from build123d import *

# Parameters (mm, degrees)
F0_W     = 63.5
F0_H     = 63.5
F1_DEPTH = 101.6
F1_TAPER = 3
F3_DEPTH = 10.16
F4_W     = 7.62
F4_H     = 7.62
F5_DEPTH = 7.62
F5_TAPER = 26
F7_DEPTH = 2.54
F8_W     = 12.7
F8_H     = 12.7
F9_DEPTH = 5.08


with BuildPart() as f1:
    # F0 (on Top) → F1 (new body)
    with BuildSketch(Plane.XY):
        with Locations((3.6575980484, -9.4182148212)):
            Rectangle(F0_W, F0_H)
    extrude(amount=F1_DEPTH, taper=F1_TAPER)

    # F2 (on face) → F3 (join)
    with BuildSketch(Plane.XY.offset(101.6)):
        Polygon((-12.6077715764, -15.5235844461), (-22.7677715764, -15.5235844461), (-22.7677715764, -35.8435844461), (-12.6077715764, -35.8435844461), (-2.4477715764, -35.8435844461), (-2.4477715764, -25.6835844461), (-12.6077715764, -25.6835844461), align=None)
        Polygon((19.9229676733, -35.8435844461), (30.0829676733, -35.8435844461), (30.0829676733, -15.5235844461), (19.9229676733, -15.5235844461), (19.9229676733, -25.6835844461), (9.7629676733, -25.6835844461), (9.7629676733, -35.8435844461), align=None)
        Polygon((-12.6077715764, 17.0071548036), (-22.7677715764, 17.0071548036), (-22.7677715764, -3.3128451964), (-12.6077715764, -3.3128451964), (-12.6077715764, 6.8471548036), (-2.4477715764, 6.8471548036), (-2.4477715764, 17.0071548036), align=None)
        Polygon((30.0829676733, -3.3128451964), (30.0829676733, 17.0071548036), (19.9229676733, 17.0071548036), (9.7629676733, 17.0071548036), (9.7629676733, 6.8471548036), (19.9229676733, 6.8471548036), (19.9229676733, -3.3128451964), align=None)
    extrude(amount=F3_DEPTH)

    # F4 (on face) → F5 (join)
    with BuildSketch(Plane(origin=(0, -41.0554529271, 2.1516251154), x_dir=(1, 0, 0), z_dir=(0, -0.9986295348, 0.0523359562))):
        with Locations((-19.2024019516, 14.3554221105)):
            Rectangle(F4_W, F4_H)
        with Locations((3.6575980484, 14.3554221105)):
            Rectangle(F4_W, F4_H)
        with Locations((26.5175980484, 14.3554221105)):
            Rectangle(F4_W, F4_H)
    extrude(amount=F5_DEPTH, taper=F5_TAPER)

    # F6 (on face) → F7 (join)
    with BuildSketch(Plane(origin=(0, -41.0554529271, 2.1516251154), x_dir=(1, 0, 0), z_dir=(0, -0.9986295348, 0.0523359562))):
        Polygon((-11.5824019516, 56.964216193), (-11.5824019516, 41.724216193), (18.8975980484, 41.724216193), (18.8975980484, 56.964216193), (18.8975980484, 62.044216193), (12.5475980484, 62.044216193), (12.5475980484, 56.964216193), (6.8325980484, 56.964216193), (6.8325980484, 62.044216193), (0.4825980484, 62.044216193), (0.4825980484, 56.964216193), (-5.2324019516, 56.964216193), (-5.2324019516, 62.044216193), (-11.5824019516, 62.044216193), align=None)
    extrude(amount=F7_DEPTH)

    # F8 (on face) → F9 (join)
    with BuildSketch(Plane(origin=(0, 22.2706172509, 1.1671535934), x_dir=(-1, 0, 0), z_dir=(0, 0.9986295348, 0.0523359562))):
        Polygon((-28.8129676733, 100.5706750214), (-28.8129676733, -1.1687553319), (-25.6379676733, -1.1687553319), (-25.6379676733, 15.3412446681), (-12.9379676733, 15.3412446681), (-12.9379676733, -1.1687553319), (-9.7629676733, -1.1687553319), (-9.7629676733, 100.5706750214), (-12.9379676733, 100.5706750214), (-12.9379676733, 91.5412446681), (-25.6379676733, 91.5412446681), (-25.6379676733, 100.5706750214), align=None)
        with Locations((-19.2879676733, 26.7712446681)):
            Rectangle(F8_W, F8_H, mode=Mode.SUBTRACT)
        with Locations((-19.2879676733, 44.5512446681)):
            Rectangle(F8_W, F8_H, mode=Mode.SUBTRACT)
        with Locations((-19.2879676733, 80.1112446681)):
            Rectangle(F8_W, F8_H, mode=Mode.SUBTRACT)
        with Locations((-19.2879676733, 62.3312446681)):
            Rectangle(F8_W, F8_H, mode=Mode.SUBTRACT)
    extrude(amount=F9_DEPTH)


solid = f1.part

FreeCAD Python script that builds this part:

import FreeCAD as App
import Part
import Sketcher
from FreeCAD import Vector
Q = App.Units.Quantity


def add_polygon(sketch, points):
    """Adds a closed chain of lines whose ends are joined by coincident constraints."""
    first, n = sketch.GeometryCount, len(points)
    for a, b in zip(points, points[1:] + points[:1]):
        sketch.addGeometry(Part.LineSegment(App.Vector(*a, 0), App.Vector(*b, 0)), False)
    for i in range(n):
        sketch.addConstraint(Sketcher.Constraint("Coincident", first + i, 2, first + (i + 1) % n, 1))

doc = App.newDocument("Part")
body = doc.addObject("PartDesign::Body", "Body")

sketch1 = body.newObject("Sketcher::SketchObject", "Sketch")
sketch1.AttachmentSupport = (doc.getObject("XY_Plane"), [""])
sketch1.MapMode = "FlatFace"
add_polygon(sketch1, [(-28.092402, 22.331785), (-28.092402, -41.168215), (35.407598, -41.168215), (35.407598, 22.331785)])
sketch1.addConstraint([
    Sketcher.Constraint("Vertical", 0),
    Sketcher.Constraint("Horizontal", 1),
    Sketcher.Constraint("Vertical", 2),
    Sketcher.Constraint("Horizontal", 3),
    Sketcher.Constraint("Equal", 3, 0),
    Sketcher.Constraint("DistanceX", 1, 1, 1, 2, Q("2.5 in")),
    Sketcher.Constraint("DistanceX", 0, 2, -1, 1, Q("1.1060001 in")),
    Sketcher.Constraint("DistanceY", 0, 2, -1, 1, Q("41.168215 mm")),
])
pad1 = body.newObject("PartDesign::Pad", "Pad")
pad1.Profile = sketch1
pad1.Length = Q("4 in")
pad1.TaperAngle = -3

sketch2 = body.newObject("Sketcher::SketchObject", "Sketch001")
sketch2.AttachmentSupport = (doc.getObject("XY_Plane"), [""])
sketch2.MapMode = "FlatFace"
sketch2.AttachmentOffset = App.Placement(Vector(0, 0, 4 * 25.4), App.Rotation())
add_polygon(sketch2, [(-12.607772, -15.523584), (-22.767772, -15.523584), (-22.767772, -35.843584), (-2.447772, -35.843584), (-2.447772, -25.683584), (-12.607772, -25.683584)])
add_polygon(sketch2, [(30.082968, -35.843584), (30.082968, -15.523584), (19.922968, -15.523584), (19.922968, -25.683584), (9.762968, -25.683584), (9.762968, -35.843584)])
add_polygon(sketch2, [(-22.767772, 17.007155), (-22.767772, -3.312845), (-12.607772, -3.312845), (-12.607772, 6.847155), (-2.447772, 6.847155), (-2.447772, 17.007155)])
add_polygon(sketch2, [(30.082968, -3.312845), (30.082968, 17.007155), (9.762968, 17.007155), (9.762968, 6.847155), (19.922968, 6.847155), (19.922968, -3.312845)])
sketch2.addConstraint([
    Sketcher.Constraint("Horizontal", 0),
    Sketcher.Constraint("Vertical", 1),
    Sketcher.Constraint("Horizontal", 2),
    Sketcher.Constraint("Vertical", 3),
    Sketcher.Constraint("Horizontal", 4),
    Sketcher.Constraint("Vertical", 5),
    Sketcher.Constraint("Vertical", 6),
    Sketcher.Constraint("Horizontal", 7),
    Sketcher.Constraint("Vertical", 8),
    Sketcher.Constraint("Horizontal", 9),
    Sketcher.Constraint("Vertical", 10),
    Sketcher.Constraint("Horizontal", 11),
    Sketcher.Constraint("Vertical", 12),
    Sketcher.Constraint("Horizontal", 13),
    Sketcher.Constraint("Vertical", 14),
    Sketcher.Constraint("Horizontal", 15),
    Sketcher.Constraint("Vertical", 16),
    Sketcher.Constraint("Horizontal", 17),
    Sketcher.Constraint("Vertical", 18),
    Sketcher.Constraint("Horizontal", 19),
    Sketcher.Constraint("Vertical", 20),
    Sketcher.Constraint("Horizontal", 21),
    Sketcher.Constraint("Vertical", 22),
    Sketcher.Constraint("Horizontal", 23),
    Sketcher.Constraint("Horizontal", 5, 2, 6, 2),
    Sketcher.Constraint("Horizontal", 4, 2, 8, 2),
    Sketcher.Constraint("Horizontal", 2, 2, 10, 2),
    Sketcher.Constraint("Horizontal", 17, 2, 18, 2),
    Sketcher.Constraint("Horizontal", 15, 2, 20, 2),
    Sketcher.Constraint("Horizontal", 13, 2, 22, 2),
    Sketcher.Constraint("Vertical", 1, 2, 12, 2),
    Sketcher.Constraint("Vertical", 5, 2, 13, 2),
    Sketcher.Constraint("Vertical", 3, 2, 15, 2),
    Sketcher.Constraint("Vertical", 11, 2, 18, 2),
    Sketcher.Constraint("Vertical", 10, 2, 19, 2),
    Sketcher.Constraint("Vertical", 8, 2, 21, 2),
    Sketcher.Constraint("Equal", 0, 4),
    Sketcher.Constraint("Equal", 4, 7),
    Sketcher.Constraint("Equal", 7, 9),
    Sketcher.Constraint("Equal", 19, 1),
    Sketcher.Constraint("Equal", 23, 3),
    Sketcher.Constraint("Equal", 6, 12),
    Sketcher.Constraint("Equal", 10, 14),
    Sketcher.Constraint("DistanceX", 0, 2, 0, 1, Q("0.4 in")),
    Sketcher.Constraint("DistanceX", 0, 2, -1, 1, Q("22.767772 mm")),
    Sketcher.Constraint("DistanceX", 3, 2, 6, 2, Q("32.530739 mm")),
    Sketcher.Constraint("DistanceY", 0, 2, 12, 2, Q("12.210739 mm")),
    Sketcher.Constraint("DistanceY", 0, 2, -1, 1, Q("15.523584 mm")),
])
pad2 = body.newObject("PartDesign::Pad", "Pad001")
pad2.Profile = sketch2
pad2.Length = Q("0.4 in")

sketch3 = body.newObject("Sketcher::SketchObject", "Sketch002")
sketch3.Placement = App.Placement(Vector(0, -41.055453, 2.151625), App.Rotation(Vector(1, 0, 0), Vector(0, 0.052335956, 0.998629535), Vector(0, -0.998629535, 0.052335956), "ZXY"))
add_polygon(sketch3, [(-23.012402, 18.165422), (-23.012402, 10.545422), (-15.392402, 10.545422), (-15.392402, 18.165422)])
add_polygon(sketch3, [(-0.152402, 18.165422), (-0.152402, 10.545422), (7.467598, 10.545422), (7.467598, 18.165422)])
add_polygon(sketch3, [(22.707598, 18.165422), (22.707598, 10.545422), (30.327598, 10.545422), (30.327598, 18.165422)])
sketch3.addConstraint([
    Sketcher.Constraint("Vertical", 0),
    Sketcher.Constraint("Horizontal", 1),
    Sketcher.Constraint("Vertical", 2),
    Sketcher.Constraint("Horizontal", 3),
    Sketcher.Constraint("Vertical", 4),
    Sketcher.Constraint("Horizontal", 5),
    Sketcher.Constraint("Vertical", 6),
    Sketcher.Constraint("Horizontal", 7),
    Sketcher.Constraint("Vertical", 8),
    Sketcher.Constraint("Horizontal", 9),
    Sketcher.Constraint("Vertical", 10),
    Sketcher.Constraint("Horizontal", 11),
    Sketcher.Constraint("Horizontal", 1, 2, 4, 2),
    Sketcher.Constraint("Horizontal", 3, 2, 6, 2),
    Sketcher.Constraint("Horizontal", 5, 2, 8, 2),
    Sketcher.Constraint("Horizontal", 7, 2, 10, 2),
    Sketcher.Constraint("Equal", 3, 5),
    Sketcher.Constraint("Equal", 7, 9),
    Sketcher.Constraint("Equal", 11, 0),
    Sketcher.Constraint("DistanceX", 1, 1, 1, 2, Q("0.3 in")),
    Sketcher.Constraint("DistanceX", 1, 2, 4, 2, Q("0.6 in")),
    Sketcher.Constraint("DistanceX", 5, 2, 8, 2, Q("0.6 in")),
    Sketcher.Constraint("DistanceX", 0, 2, -1, 1, Q("0.9060001 in")),
    Sketcher.Constraint("DistanceY", -1, 1, 0, 2, Q("10.545422 mm")),
])
pad3 = body.newObject("PartDesign::Pad", "Pad002")
pad3.Profile = sketch3
pad3.Length = Q("0.3 in")
pad3.TaperAngle = -26

sketch4 = body.newObject("Sketcher::SketchObject", "Sketch003")
sketch4.Placement = App.Placement(Vector(0, -41.055453, 2.151625), App.Rotation(Vector(1, 0, 0), Vector(0, 0.052335956, 0.998629535), Vector(0, -0.998629535, 0.052335956), "ZXY"))
add_polygon(sketch4, [(-11.582402, 41.724216), (18.897598, 41.724216), (18.897598, 62.044216), (12.547598, 62.044216), (12.547598, 56.964216), (6.832598, 56.964216), (6.832598, 62.044216), (0.482598, 62.044216), (0.482598, 56.964216), (-5.232402, 56.964216), (-5.232402, 62.044216), (-11.582402, 62.044216)])
sketch4.addConstraint([
    Sketcher.Constraint("Horizontal", 0),
    Sketcher.Constraint("Vertical", 1),
    Sketcher.Constraint("Horizontal", 2),
    Sketcher.Constraint("Vertical", 3),
    Sketcher.Constraint("Horizontal", 4),
    Sketcher.Constraint("Vertical", 5),
    Sketcher.Constraint("Horizontal", 6),
    Sketcher.Constraint("Vertical", 7),
    Sketcher.Constraint("Horizontal", 8),
    Sketcher.Constraint("Vertical", 9),
    Sketcher.Constraint("Horizontal", 10),
    Sketcher.Constraint("Vertical", 11),
    Sketcher.Constraint("Horizontal", 2, 2, 5, 2),
    Sketcher.Constraint("Horizontal", 4, 2, 7, 2),
    Sketcher.Constraint("Horizontal", 6, 2, 9, 2),
    Sketcher.Constraint("Equal", 2, 6),
    Sketcher.Constraint("Equal", 4, 8),
    Sketcher.Constraint("Equal", 6, 10),
    Sketcher.Constraint("DistanceX", 0, 1, 0, 2, Q("1.2 in")),
    Sketcher.Constraint("DistanceY", 1, 1, 1, 2, Q("0.8 in")),
    Sketcher.Constraint("DistanceY", 3, 2, 3, 1, Q("0.2 in")),
    Sketcher.Constraint("DistanceX", 2, 2, 2, 1, Q("0.25 in")),
    Sketcher.Constraint("DistanceX", -1, 1, 0, 2, Q("0.7439999 in")),
    Sketcher.Constraint("DistanceY", -1, 1, 0, 2, Q("41.724216 mm")),
])
pad4 = body.newObject("PartDesign::Pad", "Pad003")
pad4.Profile = sketch4
pad4.Length = Q("0.1 in")

sketch5 = body.newObject("Sketcher::SketchObject", "Sketch004")
sketch5.Placement = App.Placement(Vector(0, 22.270617, 1.167154), App.Rotation(Vector(-1, 0, 0), Vector(0, -0.052335956, 0.998629535), Vector(0, 0.998629535, 0.052335956), "ZXY"))
add_polygon(sketch5, [(-28.812968, 100.570675), (-28.812968, -1.168755), (-25.637968, -1.168755), (-25.637968, 15.341245), (-12.937968, 15.341245), (-12.937968, -1.168755), (-9.762968, -1.168755), (-9.762968, 100.570675), (-12.937968, 100.570675), (-12.937968, 91.541245), (-25.637968, 91.541245), (-25.637968, 100.570675)])
add_polygon(sketch5, [(-12.937968, 20.421245), (-25.637968, 20.421245), (-25.637968, 33.121245), (-12.937968, 33.121245)])
add_polygon(sketch5, [(-12.937968, 38.201245), (-25.637968, 38.201245), (-25.637968, 50.901245), (-12.937968, 50.901245)])
add_polygon(sketch5, [(-12.937968, 55.981245), (-25.637968, 55.981245), (-25.637968, 68.681245), (-12.937968, 68.681245)])
add_polygon(sketch5, [(-12.937968, 73.761245), (-25.637968, 73.761245), (-25.637968, 86.461245), (-12.937968, 86.461245)])
sketch5.addConstraint([
    Sketcher.Constraint("Vertical", 0),
    Sketcher.Constraint("Horizontal", 1),
    Sketcher.Constraint("Vertical", 2),
    Sketcher.Constraint("Horizontal", 3),
    Sketcher.Constraint("Vertical", 4),
    Sketcher.Constraint("Horizontal", 5),
    Sketcher.Constraint("Vertical", 6),
    Sketcher.Constraint("Horizontal", 7),
    Sketcher.Constraint("Vertical", 8),
    Sketcher.Constraint("Horizontal", 9),
    Sketcher.Constraint("Vertical", 10),
    Sketcher.Constraint("Horizontal", 11),
    Sketcher.Constraint("Horizontal", 12),
    Sketcher.Constraint("Vertical", 13),
    Sketcher.Constraint("Horizontal", 14),
    Sketcher.Constraint("Vertical", 15),
    Sketcher.Constraint("Horizontal", 16),
    Sketcher.Constraint("Vertical", 17),
    Sketcher.Constraint("Horizontal", 18),
    Sketcher.Constraint("Vertical", 19),
    Sketcher.Constraint("Horizontal", 20),
    Sketcher.Constraint("Vertical", 21),
    Sketcher.Constraint("Horizontal", 22),
    Sketcher.Constraint("Vertical", 23),
    Sketcher.Constraint("Horizontal", 24),
    Sketcher.Constraint("Vertical", 25),
    Sketcher.Constraint("Horizontal", 26),
    Sketcher.Constraint("Vertical", 27),
    Sketcher.Constraint("Horizontal", 1, 2, 4, 2),
    Sketcher.Constraint("Horizontal", 7, 2, 10, 2),
    Sketcher.Constraint("Vertical", 4, 2, 7, 2),
    Sketcher.Constraint("Vertical", 2, 2, 9, 2),
    Sketcher.Constraint("Vertical", 10, 2, 12, 2),
    Sketcher.Constraint("Vertical", 8, 2, 14, 2),
    Sketcher.Constraint("Vertical", 13, 2, 16, 2),
    Sketcher.Constraint("Vertical", 15, 2, 18, 2),
    Sketcher.Constraint("Vertical", 17, 2, 20, 2),
    Sketcher.Constraint("Vertical", 19, 2, 22, 2),
    Sketcher.Constraint("Vertical", 21, 2, 24, 2),
    Sketcher.Constraint("Vertical", 23, 2, 26, 2),
    Sketcher.Constraint("Equal", 1, 5),
    Sketcher.Constraint("Equal", 26, 13),
    Sketcher.Constraint("Equal", 15, 17),
    Sketcher.Constraint("Equal", 19, 21),
    Sketcher.Constraint("Equal", 23, 25),
    Sketcher.Constraint("DistanceX", 3, 1, 3, 2, Q("0.5 in")),
    Sketcher.Constraint("DistanceY", 3, 2, 8, 2, Q("3 in")),
    Sketcher.Constraint("DistanceY", 2, 1, 2, 2, Q("0.65 in")),
    Sketcher.Constraint("DistanceY", 2, 2, 12, 2, Q("0.2 in")),
    Sketcher.Constraint("DistanceY", 13, 2, 16, 2, Q("0.2 in")),
    Sketcher.Constraint("DistanceY", 17, 2, 20, 2, Q("0.2 in")),
    Sketcher.Constraint("DistanceY", 21, 2, 24, 2, Q("0.2 in")),
    Sketcher.Constraint("DistanceX", 1, 1, 1, 2, Q("0.125 in")),
    Sketcher.Constraint("DistanceY", 0, 2, 0, 1, Q("101.73943 mm")),
    Sketcher.Constraint("DistanceX", 0, 2, -1, 1, Q("28.812968 mm")),
    Sketcher.Constraint("DistanceY", 0, 2, -1, 1, Q("1.168755 mm")),
])
pad5 = body.newObject("PartDesign::Pad", "Pad004")
pad5.Profile = sketch5
pad5.Length = Q("0.2 in")

doc.recompute()
